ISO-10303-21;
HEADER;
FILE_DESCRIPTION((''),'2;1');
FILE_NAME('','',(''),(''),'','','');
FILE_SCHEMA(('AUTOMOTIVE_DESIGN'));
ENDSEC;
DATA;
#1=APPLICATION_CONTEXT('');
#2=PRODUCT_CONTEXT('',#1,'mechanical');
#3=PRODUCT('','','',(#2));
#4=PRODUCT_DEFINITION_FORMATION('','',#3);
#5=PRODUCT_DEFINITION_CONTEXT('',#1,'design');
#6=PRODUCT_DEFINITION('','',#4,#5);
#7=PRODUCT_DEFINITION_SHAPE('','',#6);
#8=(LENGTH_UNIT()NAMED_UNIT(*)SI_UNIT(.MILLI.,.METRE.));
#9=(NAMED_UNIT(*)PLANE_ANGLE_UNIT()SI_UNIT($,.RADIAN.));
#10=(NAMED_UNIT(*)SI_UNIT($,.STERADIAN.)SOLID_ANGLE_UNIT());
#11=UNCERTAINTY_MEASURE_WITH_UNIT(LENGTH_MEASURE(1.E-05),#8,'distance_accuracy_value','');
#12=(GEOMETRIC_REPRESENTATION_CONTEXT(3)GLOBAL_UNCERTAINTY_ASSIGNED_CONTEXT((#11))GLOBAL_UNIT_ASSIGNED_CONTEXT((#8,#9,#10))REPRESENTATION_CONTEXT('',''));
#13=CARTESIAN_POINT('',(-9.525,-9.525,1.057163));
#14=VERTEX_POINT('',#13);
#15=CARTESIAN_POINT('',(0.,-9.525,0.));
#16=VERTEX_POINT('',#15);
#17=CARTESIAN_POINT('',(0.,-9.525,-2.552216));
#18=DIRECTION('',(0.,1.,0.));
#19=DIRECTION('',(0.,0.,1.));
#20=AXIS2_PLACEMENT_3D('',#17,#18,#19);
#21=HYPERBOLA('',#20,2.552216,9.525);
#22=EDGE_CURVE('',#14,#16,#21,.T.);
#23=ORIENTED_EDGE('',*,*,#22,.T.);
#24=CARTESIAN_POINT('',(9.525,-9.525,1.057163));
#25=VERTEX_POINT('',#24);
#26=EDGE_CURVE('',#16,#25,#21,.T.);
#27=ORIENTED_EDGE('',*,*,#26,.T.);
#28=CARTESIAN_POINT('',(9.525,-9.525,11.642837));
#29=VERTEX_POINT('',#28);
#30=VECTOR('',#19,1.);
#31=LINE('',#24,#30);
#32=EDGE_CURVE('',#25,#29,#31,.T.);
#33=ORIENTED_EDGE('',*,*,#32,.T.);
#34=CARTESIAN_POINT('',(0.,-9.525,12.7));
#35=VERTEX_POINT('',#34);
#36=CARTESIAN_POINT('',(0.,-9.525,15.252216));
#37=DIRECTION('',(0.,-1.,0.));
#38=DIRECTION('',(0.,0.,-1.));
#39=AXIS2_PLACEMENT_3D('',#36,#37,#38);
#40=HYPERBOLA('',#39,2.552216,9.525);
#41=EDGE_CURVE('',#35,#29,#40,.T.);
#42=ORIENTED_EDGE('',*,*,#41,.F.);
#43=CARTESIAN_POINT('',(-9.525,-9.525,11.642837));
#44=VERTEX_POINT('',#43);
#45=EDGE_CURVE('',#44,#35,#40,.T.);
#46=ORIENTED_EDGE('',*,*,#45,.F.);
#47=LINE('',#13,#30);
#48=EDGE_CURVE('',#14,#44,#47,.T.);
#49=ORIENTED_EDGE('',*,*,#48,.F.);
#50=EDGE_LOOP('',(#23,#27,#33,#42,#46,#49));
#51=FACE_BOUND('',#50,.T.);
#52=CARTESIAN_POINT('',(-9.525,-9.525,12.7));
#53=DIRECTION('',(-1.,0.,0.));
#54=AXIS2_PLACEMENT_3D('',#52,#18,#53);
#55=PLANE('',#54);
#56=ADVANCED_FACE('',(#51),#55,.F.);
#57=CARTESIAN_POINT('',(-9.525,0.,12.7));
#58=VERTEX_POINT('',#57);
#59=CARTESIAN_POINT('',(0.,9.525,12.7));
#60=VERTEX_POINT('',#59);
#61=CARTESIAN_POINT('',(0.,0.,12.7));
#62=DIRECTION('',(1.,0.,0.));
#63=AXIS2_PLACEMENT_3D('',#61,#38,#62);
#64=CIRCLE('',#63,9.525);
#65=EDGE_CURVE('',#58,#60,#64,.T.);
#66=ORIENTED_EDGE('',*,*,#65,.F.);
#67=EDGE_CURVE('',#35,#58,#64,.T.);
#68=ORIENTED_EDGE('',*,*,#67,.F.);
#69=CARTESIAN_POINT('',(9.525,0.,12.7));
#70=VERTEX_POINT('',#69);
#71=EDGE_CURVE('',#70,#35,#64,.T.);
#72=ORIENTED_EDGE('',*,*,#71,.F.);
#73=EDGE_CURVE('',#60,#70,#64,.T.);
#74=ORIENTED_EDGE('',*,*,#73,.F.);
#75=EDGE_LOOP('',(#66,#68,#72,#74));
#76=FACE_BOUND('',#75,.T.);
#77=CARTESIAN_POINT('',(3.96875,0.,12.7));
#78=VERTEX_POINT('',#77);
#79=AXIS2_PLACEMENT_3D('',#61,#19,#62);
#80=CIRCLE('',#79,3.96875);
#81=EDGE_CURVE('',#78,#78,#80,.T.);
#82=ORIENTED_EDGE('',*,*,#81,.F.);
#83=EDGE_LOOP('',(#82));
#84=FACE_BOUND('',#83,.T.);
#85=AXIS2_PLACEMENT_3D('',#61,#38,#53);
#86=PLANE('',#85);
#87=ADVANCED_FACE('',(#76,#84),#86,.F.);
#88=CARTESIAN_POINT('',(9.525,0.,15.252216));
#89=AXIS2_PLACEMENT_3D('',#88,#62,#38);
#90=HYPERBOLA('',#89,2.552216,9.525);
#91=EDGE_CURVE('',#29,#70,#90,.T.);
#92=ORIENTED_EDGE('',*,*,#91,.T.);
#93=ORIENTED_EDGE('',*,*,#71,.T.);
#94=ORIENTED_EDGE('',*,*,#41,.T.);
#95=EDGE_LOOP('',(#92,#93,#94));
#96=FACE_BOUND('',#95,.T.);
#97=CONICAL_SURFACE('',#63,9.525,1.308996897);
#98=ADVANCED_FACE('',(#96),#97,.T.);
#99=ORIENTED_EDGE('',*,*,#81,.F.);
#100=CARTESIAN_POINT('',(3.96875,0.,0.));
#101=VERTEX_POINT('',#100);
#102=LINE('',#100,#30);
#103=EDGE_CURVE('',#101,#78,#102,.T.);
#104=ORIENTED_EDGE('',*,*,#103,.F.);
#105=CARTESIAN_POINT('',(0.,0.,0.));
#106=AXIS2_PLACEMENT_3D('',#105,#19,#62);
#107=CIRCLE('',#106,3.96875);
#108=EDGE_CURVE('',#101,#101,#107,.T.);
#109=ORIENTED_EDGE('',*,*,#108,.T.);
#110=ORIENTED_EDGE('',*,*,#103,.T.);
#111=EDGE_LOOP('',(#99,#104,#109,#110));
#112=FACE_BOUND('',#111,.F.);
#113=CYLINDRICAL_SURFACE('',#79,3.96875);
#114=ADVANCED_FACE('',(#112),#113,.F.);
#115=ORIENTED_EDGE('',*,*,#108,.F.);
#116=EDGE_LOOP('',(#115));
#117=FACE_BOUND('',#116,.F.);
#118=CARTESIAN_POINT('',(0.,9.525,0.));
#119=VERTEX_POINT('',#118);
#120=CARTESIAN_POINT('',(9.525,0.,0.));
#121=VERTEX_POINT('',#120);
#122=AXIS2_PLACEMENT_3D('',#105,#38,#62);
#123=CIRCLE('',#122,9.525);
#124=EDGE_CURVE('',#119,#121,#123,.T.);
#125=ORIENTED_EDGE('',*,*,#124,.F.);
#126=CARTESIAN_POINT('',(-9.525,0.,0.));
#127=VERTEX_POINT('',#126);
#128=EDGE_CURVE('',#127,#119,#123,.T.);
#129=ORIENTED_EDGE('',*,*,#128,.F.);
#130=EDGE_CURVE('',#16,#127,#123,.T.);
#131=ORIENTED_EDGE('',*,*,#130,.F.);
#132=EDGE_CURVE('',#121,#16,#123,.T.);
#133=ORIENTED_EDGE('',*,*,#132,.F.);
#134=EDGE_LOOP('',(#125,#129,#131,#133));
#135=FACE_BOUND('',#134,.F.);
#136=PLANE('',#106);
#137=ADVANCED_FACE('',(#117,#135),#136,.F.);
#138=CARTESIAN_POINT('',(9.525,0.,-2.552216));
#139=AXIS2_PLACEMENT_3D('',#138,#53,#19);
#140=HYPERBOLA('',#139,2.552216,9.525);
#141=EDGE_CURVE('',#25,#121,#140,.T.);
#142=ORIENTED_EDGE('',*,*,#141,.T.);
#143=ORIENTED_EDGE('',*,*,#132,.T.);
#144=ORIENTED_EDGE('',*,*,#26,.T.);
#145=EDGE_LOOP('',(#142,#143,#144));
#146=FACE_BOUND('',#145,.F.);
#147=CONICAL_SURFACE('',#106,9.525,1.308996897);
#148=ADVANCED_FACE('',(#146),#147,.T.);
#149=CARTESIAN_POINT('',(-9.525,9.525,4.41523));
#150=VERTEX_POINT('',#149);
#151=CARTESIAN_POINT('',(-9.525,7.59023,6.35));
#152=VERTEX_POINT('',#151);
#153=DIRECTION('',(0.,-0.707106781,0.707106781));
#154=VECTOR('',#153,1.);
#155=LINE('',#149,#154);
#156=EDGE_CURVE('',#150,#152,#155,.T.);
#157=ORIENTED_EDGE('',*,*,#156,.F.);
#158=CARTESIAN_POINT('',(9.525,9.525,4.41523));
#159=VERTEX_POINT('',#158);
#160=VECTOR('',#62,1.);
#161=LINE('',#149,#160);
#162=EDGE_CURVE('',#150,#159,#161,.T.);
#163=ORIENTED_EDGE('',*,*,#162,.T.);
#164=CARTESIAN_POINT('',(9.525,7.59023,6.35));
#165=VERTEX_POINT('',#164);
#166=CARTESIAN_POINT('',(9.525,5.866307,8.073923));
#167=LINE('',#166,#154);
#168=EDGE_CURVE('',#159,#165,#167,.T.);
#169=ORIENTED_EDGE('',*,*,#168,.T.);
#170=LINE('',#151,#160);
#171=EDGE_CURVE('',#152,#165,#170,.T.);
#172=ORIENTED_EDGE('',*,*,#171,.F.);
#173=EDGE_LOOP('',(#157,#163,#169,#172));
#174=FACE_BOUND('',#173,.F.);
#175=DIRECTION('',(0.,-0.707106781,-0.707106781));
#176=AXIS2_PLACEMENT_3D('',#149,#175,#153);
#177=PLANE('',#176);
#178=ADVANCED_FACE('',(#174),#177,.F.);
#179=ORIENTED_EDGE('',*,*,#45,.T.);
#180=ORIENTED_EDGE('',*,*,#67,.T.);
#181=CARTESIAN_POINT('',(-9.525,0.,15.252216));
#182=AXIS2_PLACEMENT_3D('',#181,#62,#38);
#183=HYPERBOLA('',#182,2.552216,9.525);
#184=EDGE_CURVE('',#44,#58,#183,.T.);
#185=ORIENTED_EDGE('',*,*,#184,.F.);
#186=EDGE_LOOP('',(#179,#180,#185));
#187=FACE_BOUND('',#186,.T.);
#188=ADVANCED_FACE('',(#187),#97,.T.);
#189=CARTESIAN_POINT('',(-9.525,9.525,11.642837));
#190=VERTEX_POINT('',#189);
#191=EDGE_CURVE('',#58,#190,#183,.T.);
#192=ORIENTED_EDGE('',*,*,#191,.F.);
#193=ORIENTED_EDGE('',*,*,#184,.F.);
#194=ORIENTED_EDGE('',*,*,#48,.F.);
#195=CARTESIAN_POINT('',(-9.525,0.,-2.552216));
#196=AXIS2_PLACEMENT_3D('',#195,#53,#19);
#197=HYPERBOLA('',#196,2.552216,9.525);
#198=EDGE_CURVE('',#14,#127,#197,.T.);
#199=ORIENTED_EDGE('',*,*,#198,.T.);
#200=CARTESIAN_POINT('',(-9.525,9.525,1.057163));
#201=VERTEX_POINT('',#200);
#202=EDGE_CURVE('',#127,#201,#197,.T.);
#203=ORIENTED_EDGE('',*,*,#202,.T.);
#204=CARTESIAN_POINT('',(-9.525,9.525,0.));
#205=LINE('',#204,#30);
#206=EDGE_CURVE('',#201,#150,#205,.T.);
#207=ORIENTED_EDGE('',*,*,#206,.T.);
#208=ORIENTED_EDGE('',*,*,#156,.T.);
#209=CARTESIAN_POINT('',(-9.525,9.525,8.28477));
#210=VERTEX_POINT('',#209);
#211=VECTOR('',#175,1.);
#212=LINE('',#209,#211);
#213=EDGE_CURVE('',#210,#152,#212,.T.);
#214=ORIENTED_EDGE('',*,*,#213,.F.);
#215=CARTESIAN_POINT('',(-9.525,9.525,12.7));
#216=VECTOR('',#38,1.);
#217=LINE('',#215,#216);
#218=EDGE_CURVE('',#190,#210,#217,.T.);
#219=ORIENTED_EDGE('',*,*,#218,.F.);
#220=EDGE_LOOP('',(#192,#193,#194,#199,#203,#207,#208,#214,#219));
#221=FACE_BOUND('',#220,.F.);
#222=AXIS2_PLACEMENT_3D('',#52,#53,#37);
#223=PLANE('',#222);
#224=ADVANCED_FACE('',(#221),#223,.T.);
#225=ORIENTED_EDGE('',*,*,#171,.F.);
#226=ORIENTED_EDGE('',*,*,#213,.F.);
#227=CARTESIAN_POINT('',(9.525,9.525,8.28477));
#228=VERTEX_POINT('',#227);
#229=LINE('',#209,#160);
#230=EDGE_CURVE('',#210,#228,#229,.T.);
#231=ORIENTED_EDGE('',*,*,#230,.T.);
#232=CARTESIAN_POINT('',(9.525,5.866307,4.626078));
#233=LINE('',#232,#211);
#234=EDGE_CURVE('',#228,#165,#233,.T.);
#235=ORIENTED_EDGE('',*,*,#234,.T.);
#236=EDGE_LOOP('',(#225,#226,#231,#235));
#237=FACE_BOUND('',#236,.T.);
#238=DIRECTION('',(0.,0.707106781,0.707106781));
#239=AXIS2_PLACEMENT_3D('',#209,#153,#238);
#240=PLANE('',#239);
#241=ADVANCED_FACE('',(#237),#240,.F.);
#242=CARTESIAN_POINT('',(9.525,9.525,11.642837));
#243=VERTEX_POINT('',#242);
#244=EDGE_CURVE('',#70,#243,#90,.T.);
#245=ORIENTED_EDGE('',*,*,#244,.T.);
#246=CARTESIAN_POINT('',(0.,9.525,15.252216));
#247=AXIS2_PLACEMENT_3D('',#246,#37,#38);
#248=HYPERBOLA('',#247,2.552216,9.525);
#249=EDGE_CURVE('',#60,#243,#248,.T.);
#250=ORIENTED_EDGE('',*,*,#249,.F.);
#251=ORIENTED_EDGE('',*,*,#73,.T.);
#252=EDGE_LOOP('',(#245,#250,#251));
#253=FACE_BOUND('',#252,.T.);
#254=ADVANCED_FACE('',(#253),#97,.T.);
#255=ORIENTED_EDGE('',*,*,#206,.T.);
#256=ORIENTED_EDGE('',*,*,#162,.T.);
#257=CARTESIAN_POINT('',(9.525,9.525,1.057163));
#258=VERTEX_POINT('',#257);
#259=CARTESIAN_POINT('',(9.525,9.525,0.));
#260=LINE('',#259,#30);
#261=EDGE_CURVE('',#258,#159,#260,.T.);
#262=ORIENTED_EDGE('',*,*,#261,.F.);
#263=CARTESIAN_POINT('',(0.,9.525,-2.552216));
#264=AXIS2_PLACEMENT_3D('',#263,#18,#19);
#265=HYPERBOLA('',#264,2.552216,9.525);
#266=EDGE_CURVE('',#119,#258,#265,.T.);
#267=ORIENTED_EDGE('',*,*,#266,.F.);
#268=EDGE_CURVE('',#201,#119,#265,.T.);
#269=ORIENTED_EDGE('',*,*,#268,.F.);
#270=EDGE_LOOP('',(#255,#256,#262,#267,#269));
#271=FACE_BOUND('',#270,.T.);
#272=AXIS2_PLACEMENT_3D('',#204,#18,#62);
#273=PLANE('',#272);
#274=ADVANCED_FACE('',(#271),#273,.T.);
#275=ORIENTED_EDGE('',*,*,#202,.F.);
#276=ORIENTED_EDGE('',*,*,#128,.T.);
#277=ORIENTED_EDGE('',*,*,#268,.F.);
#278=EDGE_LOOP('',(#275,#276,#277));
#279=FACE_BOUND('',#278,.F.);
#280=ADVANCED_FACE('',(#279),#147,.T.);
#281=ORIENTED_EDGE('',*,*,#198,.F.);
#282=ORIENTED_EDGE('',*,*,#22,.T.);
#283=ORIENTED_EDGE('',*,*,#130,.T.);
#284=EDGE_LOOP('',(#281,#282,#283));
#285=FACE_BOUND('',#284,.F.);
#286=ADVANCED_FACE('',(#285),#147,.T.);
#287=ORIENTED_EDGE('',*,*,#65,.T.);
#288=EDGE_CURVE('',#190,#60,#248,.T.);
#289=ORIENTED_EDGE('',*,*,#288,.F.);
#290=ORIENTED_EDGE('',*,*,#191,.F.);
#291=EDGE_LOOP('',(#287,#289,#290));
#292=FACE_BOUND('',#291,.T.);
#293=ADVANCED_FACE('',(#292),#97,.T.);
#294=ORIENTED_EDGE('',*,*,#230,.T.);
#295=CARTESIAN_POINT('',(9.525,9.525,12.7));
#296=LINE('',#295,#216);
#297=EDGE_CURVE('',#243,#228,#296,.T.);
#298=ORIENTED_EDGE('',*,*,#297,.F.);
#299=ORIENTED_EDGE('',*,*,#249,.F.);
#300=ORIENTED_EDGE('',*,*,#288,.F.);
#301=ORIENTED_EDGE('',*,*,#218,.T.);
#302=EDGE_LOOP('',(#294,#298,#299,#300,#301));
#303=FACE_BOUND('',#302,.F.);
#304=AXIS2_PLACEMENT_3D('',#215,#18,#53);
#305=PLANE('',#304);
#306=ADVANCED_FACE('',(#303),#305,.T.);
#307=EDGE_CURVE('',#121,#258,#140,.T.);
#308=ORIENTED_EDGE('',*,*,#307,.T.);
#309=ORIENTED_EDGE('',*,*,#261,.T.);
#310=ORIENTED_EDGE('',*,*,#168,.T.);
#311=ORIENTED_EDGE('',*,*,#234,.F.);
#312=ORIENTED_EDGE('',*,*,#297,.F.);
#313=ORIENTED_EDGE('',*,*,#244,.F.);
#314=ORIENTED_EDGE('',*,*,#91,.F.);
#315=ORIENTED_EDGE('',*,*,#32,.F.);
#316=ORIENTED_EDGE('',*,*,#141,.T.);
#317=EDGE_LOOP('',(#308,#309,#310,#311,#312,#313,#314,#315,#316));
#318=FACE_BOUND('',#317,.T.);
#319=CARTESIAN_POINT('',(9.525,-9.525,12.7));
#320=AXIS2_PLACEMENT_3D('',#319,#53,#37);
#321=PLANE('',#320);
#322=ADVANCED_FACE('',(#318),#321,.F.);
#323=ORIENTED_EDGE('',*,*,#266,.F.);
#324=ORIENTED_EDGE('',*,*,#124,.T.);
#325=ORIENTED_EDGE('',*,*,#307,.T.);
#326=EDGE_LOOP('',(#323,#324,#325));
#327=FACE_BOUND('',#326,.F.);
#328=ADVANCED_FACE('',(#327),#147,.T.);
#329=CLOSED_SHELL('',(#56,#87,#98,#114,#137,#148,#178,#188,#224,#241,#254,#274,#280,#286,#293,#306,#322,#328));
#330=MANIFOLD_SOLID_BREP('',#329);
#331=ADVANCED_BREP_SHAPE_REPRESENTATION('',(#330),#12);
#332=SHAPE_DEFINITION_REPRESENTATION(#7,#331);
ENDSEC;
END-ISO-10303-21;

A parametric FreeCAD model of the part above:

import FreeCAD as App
import Part
import Sketcher
from FreeCAD import Vector
Q = App.Units.Quantity

doc = App.newDocument("Part")
body = doc.addObject("PartDesign::Body", "Body")

sketch1 = doc.addObject("Sketcher::SketchObject", "Sketch")
body.addObject(sketch1)
sketch1.AttachmentSupport = (doc.XY_Plane, [""])
sketch1.MapMode = "FlatFace"
sketch1.addGeometry([
    Part.LineSegment(Vector(-9.5, 9.5, 0), Vector(-9.5, -9.5, 0)),
    Part.LineSegment(Vector(-9.5, -9.5, 0), Vector(9.5, -9.5, 0)),
    Part.LineSegment(Vector(9.5, -9.5, 0), Vector(9.5, 9.5, 0)),
    Part.LineSegment(Vector(9.5, 9.5, 0), Vector(-9.5, 9.5, 0)),
    Part.Circle(Vector(0, 0, 0), Vector(0, 0, 1), 4),
], False)
sketch1.addConstraint([
    Sketcher.Constraint("Coincident", 0, 2, 1, 1),
    Sketcher.Constraint("Coincident", 1, 2, 2, 1),
    Sketcher.Constraint("Coincident", 2, 2, 3, 1),
    Sketcher.Constraint("Coincident", 3, 2, 0, 1),
    Sketcher.Constraint("Vertical", 0),
    Sketcher.Constraint("Horizontal", 1),
    Sketcher.Constraint("Vertical", 2),
    Sketcher.Constraint("Horizontal", 3),
    Sketcher.Constraint("Coincident", 4, 3, -1, 1),
    Sketcher.Constraint("Symmetric", 0, 2, 2, 2, -1, 1),
    Sketcher.Constraint("Equal", 3, 0),
    Sketcher.Constraint("Diameter", 4, Q("0.3125 in")),
    Sketcher.Constraint("DistanceX", 1, 1, 1, 2, Q("0.75 in")),
])
pad1 = doc.addObject("PartDesign::Pad", "Pad")
body.addObject(pad1)
pad1.Profile = sketch1
pad1.Length = Q("0.25 in")

sketch2 = doc.addObject("Sketcher::SketchObject", "Sketch001")
body.addObject(sketch2)
sketch2.AttachmentSupport = (doc.YZ_Plane, [""])
sketch2.MapMode = "FlatFace"
sketch2.addGeometry([
    Part.LineSegment(Vector(-20.8, 0, 0), Vector(-9.5, 0, 0)),
    Part.LineSegment(Vector(-9.5, 0, 0), Vector(-20.8, 3, 0)),
    Part.LineSegment(Vector(-20.8, 3, 0), Vector(-20.8, 0, 0)),
], False)
sketch2.addConstraint([
    Sketcher.Constraint("Coincident", 0, 2, 1, 1),
    Sketcher.Constraint("Coincident", 1, 2, 2, 1),
    Sketcher.Constraint("Coincident", 2, 2, 0, 1),
    Sketcher.Constraint("Horizontal", 0),
    Sketcher.Constraint("Vertical", 2),
    Sketcher.Constraint("PointOnObject", 0, 2, -1),
    Sketcher.Constraint("Angle", 1, Q("164.999998 deg")),
    Sketcher.Constraint("DistanceX", 0, 2, -1, 1, Q("0.375 in")),
    Sketcher.Constraint("DistanceX", 0, 1, 0, 2, 11.284421),
])

sketch3 = doc.addObject("Sketcher::SketchObject", "Sketch002")
body.addObject(sketch3)
sketch3.AttachmentSupport = (doc.XY_Plane, [""])
sketch3.MapMode = "FlatFace"
sketch3.addGeometry(Part.Circle(Vector(0, 0, 0), Vector(0, 0, 1), 10), False)
sketch3.addConstraint([
    Sketcher.Constraint("Coincident", 0, 3, -1, 1),
    Sketcher.Constraint("Diameter", 0, Q("0.75 in")),
])
doc.recompute()

subtractivepipe = doc.addObject("PartDesign::SubtractivePipe", "SubtractivePipe")
body.addObject(subtractivepipe)
subtractivepipe.Profile = sketch2
subtractivepipe.Spine = (sketch3, ["Edge1"])

sketch4 = doc.addObject("Sketcher::SketchObject", "Sketch003")
body.addObject(sketch4)
sketch4.AttachmentSupport = (doc.YZ_Plane, [""])
sketch4.MapMode = "FlatFace"
sketch4.AttachmentOffset = App.Placement(Vector(0, 0, -0.375 * 25.4), App.Rotation())
sketch4.addGeometry([
    Part.LineSegment(Vector(7.6, 6.3, 0), Vector(9.5, 6.3, 0)),
    Part.LineSegment(Vector(9.5, 6.3, 0), Vector(9.5, 4.4, 0)),
    Part.LineSegment(Vector(9.5, 4.4, 0), Vector(7.6, 6.3, 0)),
], False)
sketch4.addConstraint([
    Sketcher.Constraint("Coincident", 0, 2, 1, 1),
    Sketcher.Constraint("Coincident", 1, 2, 2, 1),
    Sketcher.Constraint("Coincident", 2, 2, 0, 1),
    Sketcher.Constraint("Horizontal", 0),
    Sketcher.Constraint("Vertical", 1),
    Sketcher.Constraint("Equal", 0, 1),
    Sketcher.Constraint("DistanceY", -1, 1, 0, 2, Q("0.25 in")),
    Sketcher.Constraint("DistanceX", -1, 1, 0, 2, Q("0.375 in")),
    Sketcher.Constraint("DistanceX", 0, 1, 0, 2, 1.93477),
])
pocket1 = doc.addObject("PartDesign::Pocket", "Pocket")
body.addObject(pocket1)
pocket1.Profile = sketch4
pocket1.Type = "ThroughAll"
pocket1.Reversed = True
body2 = doc.addObject("PartDesign::Body", "Body001")
doc.recompute()

body2.BaseFeature = body
doc.recompute()

mirroring = doc.addObject("Part::Mirroring", "Mirroring")
mirroring.Source = body
mirroring.Base = Vector(0, -1.140472, 6.35)
mirroring.Normal = Vector(0, 0, 1)
body3 = doc.addObject("PartDesign::Body", "Body002")
body3.BaseFeature = mirroring
boolean = doc.addObject("PartDesign::Boolean", "Boolean")
body2.addObject(boolean)
boolean.Type = "Fuse"
boolean.addObjects([body3])
doc.recompute()
mirroring.Visibility = False

doc.recompute()
